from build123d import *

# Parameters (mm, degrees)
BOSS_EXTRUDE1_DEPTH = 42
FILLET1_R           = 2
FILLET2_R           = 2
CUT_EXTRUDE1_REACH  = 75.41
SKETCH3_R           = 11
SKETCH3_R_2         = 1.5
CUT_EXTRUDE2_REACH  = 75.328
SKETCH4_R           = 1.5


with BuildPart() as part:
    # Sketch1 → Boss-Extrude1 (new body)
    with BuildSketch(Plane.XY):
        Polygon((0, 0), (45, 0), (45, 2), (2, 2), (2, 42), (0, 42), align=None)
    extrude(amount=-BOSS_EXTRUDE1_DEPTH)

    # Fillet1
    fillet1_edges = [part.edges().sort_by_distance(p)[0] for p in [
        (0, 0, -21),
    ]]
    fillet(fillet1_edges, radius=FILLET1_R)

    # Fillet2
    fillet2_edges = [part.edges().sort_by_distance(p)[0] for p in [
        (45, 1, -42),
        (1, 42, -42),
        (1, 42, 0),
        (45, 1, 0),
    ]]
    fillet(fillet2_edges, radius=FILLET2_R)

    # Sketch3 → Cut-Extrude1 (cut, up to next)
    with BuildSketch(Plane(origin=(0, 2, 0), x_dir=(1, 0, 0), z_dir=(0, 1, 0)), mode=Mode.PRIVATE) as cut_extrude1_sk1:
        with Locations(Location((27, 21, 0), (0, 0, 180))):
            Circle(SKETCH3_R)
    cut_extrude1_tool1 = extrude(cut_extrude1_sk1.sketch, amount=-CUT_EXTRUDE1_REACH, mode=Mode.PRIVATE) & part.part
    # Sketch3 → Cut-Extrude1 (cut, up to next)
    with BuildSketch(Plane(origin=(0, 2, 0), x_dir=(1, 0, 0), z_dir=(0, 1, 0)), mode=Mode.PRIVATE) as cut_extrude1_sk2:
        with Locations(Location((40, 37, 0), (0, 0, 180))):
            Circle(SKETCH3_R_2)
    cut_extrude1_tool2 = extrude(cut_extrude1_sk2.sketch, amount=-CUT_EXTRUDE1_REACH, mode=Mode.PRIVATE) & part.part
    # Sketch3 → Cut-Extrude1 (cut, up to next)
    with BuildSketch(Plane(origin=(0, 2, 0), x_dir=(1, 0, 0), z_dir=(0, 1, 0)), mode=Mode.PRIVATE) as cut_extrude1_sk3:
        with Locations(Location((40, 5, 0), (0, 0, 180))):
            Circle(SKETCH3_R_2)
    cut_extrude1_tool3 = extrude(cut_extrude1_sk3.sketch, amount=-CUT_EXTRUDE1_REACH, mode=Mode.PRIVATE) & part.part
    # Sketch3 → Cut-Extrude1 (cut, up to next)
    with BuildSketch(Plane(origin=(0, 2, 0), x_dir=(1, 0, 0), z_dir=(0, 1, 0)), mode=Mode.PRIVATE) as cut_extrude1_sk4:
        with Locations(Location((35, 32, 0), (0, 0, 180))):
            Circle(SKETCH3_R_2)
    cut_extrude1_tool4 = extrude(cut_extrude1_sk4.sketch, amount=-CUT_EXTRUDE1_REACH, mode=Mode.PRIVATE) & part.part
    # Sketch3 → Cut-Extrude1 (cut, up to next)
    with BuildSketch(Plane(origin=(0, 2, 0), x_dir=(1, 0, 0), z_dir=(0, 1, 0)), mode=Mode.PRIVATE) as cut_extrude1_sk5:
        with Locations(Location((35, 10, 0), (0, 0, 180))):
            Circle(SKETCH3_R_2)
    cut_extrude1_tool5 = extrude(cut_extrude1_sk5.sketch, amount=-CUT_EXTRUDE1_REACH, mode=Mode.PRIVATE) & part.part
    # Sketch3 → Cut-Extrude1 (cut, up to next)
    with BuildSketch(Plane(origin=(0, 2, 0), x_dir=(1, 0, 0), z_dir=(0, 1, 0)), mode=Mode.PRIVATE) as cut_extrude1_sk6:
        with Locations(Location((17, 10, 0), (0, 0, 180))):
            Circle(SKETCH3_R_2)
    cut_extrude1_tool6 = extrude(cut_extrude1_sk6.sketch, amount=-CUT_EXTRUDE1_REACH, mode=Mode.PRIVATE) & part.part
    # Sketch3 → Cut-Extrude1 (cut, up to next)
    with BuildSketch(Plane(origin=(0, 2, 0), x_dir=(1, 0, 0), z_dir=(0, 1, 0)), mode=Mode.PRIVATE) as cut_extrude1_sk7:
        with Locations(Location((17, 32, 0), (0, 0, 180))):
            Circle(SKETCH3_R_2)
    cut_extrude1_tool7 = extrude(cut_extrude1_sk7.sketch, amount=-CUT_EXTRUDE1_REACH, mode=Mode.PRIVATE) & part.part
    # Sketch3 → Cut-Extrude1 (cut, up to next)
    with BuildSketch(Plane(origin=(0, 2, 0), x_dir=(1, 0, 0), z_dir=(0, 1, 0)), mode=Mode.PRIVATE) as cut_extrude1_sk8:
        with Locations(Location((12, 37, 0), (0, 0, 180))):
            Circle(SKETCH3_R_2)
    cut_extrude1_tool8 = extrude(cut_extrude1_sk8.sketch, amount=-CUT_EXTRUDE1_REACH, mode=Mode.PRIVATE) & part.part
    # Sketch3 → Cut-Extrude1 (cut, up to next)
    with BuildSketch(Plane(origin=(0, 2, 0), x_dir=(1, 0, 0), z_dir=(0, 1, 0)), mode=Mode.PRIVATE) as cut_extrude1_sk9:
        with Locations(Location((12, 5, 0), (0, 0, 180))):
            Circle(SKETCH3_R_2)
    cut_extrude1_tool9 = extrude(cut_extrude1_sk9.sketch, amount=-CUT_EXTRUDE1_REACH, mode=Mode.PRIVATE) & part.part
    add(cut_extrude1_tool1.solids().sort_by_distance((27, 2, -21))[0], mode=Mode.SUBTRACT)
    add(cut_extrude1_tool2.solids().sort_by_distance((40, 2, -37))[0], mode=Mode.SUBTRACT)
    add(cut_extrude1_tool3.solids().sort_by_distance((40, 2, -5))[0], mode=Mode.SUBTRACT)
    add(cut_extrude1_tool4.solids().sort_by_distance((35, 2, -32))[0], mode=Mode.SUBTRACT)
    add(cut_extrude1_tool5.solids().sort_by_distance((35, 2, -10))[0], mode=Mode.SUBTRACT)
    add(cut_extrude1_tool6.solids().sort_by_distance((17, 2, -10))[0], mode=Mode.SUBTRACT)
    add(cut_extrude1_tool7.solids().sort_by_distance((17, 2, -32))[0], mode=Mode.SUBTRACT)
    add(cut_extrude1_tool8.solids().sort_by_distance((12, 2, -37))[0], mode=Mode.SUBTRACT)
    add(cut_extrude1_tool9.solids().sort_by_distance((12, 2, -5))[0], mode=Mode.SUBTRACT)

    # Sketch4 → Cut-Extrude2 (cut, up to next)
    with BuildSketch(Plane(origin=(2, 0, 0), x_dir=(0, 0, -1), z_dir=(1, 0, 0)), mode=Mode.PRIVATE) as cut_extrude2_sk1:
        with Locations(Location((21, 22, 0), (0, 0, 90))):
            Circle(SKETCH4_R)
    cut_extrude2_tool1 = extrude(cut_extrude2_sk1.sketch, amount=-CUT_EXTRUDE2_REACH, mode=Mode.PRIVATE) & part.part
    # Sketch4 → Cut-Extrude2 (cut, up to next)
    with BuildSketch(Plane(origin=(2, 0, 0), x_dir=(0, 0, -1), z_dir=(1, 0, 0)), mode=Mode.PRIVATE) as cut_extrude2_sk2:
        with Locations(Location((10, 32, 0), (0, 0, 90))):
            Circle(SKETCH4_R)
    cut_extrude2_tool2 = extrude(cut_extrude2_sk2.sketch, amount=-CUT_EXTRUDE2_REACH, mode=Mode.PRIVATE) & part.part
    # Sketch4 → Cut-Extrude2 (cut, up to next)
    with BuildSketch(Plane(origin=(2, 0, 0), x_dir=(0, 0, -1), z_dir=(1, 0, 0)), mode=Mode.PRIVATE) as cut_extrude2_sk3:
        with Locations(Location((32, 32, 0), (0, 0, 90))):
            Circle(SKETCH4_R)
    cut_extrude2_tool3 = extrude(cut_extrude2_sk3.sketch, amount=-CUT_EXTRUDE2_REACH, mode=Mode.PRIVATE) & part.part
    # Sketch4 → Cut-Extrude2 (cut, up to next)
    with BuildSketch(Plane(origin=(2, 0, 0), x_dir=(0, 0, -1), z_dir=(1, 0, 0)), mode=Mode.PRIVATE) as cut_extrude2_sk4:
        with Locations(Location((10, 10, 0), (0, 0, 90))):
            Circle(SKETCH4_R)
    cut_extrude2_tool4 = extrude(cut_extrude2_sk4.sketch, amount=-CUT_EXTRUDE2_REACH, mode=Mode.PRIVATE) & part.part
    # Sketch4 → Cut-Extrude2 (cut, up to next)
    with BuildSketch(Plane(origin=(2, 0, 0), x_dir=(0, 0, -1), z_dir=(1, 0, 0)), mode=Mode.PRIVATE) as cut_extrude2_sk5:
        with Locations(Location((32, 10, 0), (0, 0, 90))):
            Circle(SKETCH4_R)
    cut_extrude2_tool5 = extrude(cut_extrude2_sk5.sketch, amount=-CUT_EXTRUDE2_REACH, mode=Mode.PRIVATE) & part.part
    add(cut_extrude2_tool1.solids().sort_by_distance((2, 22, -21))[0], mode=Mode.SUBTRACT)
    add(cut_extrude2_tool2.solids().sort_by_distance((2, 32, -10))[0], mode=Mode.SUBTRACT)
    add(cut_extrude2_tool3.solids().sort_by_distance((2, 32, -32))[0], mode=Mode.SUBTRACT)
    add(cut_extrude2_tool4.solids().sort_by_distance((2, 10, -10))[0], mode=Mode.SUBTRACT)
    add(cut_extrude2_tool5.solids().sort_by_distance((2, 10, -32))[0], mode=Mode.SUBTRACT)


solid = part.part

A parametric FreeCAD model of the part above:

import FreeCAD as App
import Part
import Sketcher

V = App.Vector
Q = App.Units.Quantity


def edges_at(feature, points):
    """Names of the edges that pass closest to the given points."""
    edges = feature.Shape.Edges
    near = lambda p: min(range(len(edges)), key=lambda i: edges[i].distToShape(Part.Vertex(*p))[0])
    return sorted({f"Edge{near(p) + 1}" for p in points})


def add_polygon(sketch, points):
    """Adds a closed chain of lines whose ends are joined by coincident constraints."""
    first, n = sketch.GeometryCount, len(points)
    for a, b in zip(points, points[1:] + points[:1]):
        sketch.addGeometry(Part.LineSegment(App.Vector(*a, 0), App.Vector(*b, 0)), False)
    for i in range(n):
        sketch.addConstraint(Sketcher.Constraint("Coincident", first + i, 2, first + (i + 1) % n, 1))

doc = App.newDocument("Part")
body = doc.addObject("PartDesign::Body", "Body")

# Sketch on XY plane
sketch1 = body.newObject("Sketcher::SketchObject", "Sketch")
sketch1.AttachmentSupport = (doc.getObject("XY_Plane"), [""])
sketch1.MapMode = "FlatFace"
add_polygon(sketch1, [(0, 0), (45, 0), (45, 2), (2, 2), (2, 42), (0, 42)])  # lines 0-5
sketch1.addConstraint([
    Sketcher.Constraint("Horizontal", 0),
    Sketcher.Constraint("Vertical", 1),
    Sketcher.Constraint("Horizontal", 2),
    Sketcher.Constraint("Vertical", 3),
    Sketcher.Constraint("Horizontal", 4),
    Sketcher.Constraint("Vertical", 5),
    Sketcher.Constraint("Coincident", 5, 2, -1, 1),
    Sketcher.Constraint("Equal", 4, 1),
    Sketcher.Constraint("DistanceX", 0, 1, 0, 2, Q("45 mm")),
    Sketcher.Constraint("DistanceX", 2, 2, 2, 1, Q("43 mm")),
    Sketcher.Constraint("DistanceY", 3, 1, 3, 2, Q("40 mm")),
])
pad1 = body.newObject("PartDesign::Pad", "Pad")
pad1.Profile = sketch1
pad1.Length = 42
pad1.Reversed = True
doc.recompute()

fillet = body.newObject("PartDesign::Fillet", "Fillet")
fillet.Base = (pad1, edges_at(pad1, [(0, 0, -21)]))
fillet.Radius = 2
doc.recompute()

fillet2 = body.newObject("PartDesign::Fillet", "Fillet001")
fillet2.Base = (fillet, edges_at(fillet, [
    (45, 1, -42),
    (1, 42, -42),
    (1, 42, 0),
    (45, 1, 0),
]))
fillet2.Radius = 2

# Sketch on XZ plane
sketch2 = body.newObject("Sketcher::SketchObject", "Sketch001")
sketch2.AttachmentSupport = (doc.getObject("XZ_Plane"), [""])
sketch2.MapMode = "FlatFace"
sketch2.AttachmentOffset = App.Placement(V(0, 0, -2), App.Rotation())
sketch2.addGeometry(Part.Circle(V(27, -21, 0), V(0, 0, 1), 11), False)
sketch2.addConstraint([
    Sketcher.Constraint("Diameter", 0, Q("22 mm")),
    Sketcher.Constraint("DistanceX", -1, 1, 0, 3, Q("27 mm")),
    Sketcher.Constraint("DistanceY", 0, 3, -1, 1, Q("21 mm")),
])
pocket1 = body.newObject("PartDesign::Pocket", "Pocket")
pocket1.Profile = sketch2
pocket1.Type = "UpToFirst"
pocket1.Reversed = True

# Sketch on XZ plane
sketch3 = body.newObject("Sketcher::SketchObject", "Sketch002")
sketch3.AttachmentSupport = (doc.getObject("XZ_Plane"), [""])
sketch3.MapMode = "FlatFace"
sketch3.AttachmentOffset = App.Placement(V(0, 0, -2), App.Rotation())
sketch3.addGeometry(Part.Circle(V(40, -37, 0), V(0, 0, 1), 1.5), False)
sketch3.addConstraint([
    Sketcher.Constraint("Diameter", 0, Q("3 mm")),
    Sketcher.Constraint("DistanceX", -1, 1, 0, 3, Q("40 mm")),
    Sketcher.Constraint("DistanceY", 0, 3, -1, 1, Q("37 mm")),
])
pocket2 = body.newObject("PartDesign::Pocket", "Pocket001")
pocket2.Profile = sketch3
pocket2.Type = "UpToFirst"
pocket2.Reversed = True

# Sketch on XZ plane
sketch4 = body.newObject("Sketcher::SketchObject", "Sketch003")
sketch4.AttachmentSupport = (doc.getObject("XZ_Plane"), [""])
sketch4.MapMode = "FlatFace"
sketch4.AttachmentOffset = App.Placement(V(0, 0, -2), App.Rotation())
sketch4.addGeometry(Part.Circle(V(40, -5, 0), V(0, 0, 1), 1.5), False)
sketch4.addConstraint([
    Sketcher.Constraint("Diameter", 0, Q("3 mm")),
    Sketcher.Constraint("DistanceX", -1, 1, 0, 3, Q("40 mm")),
    Sketcher.Constraint("DistanceY", 0, 3, -1, 1, Q("5 mm")),
])
pocket3 = body.newObject("PartDesign::Pocket", "Pocket002")
pocket3.Profile = sketch4
pocket3.Type = "UpToFirst"
pocket3.Reversed = True

# Sketch on XZ plane
sketch5 = body.newObject("Sketcher::SketchObject", "Sketch004")
sketch5.AttachmentSupport = (doc.getObject("XZ_Plane"), [""])
sketch5.MapMode = "FlatFace"
sketch5.AttachmentOffset = App.Placement(V(0, 0, -2), App.Rotation())
sketch5.addGeometry(Part.Circle(V(35, -32, 0), V(0, 0, 1), 1.5), False)
sketch5.addConstraint([
    Sketcher.Constraint("Diameter", 0, Q("3 mm")),
    Sketcher.Constraint("DistanceX", -1, 1, 0, 3, Q("35 mm")),
    Sketcher.Constraint("DistanceY", 0, 3, -1, 1, Q("32 mm")),
])
pocket4 = body.newObject("PartDesign::Pocket", "Pocket003")
pocket4.Profile = sketch5
pocket4.Type = "UpToFirst"
pocket4.Reversed = True

# Sketch on XZ plane
sketch6 = body.newObject("Sketcher::SketchObject", "Sketch005")
sketch6.AttachmentSupport = (doc.getObject("XZ_Plane"), [""])
sketch6.MapMode = "FlatFace"
sketch6.AttachmentOffset = App.Placement(V(0, 0, -2), App.Rotation())
sketch6.addGeometry(Part.Circle(V(35, -10, 0), V(0, 0, 1), 1.5), False)
sketch6.addConstraint([
    Sketcher.Constraint("Diameter", 0, Q("3 mm")),
    Sketcher.Constraint("DistanceX", -1, 1, 0, 3, Q("35 mm")),
    Sketcher.Constraint("DistanceY", 0, 3, -1, 1, Q("10 mm")),
])
pocket5 = body.newObject("PartDesign::Pocket", "Pocket004")
pocket5.Profile = sketch6
pocket5.Type = "UpToFirst"
pocket5.Reversed = True

# Sketch on XZ plane
sketch7 = body.newObject("Sketcher::SketchObject", "Sketch006")
sketch7.AttachmentSupport = (doc.getObject("XZ_Plane"), [""])
sketch7.MapMode = "FlatFace"
sketch7.AttachmentOffset = App.Placement(V(0, 0, -2), App.Rotation())
sketch7.addGeometry(Part.Circle(V(17, -10, 0), V(0, 0, 1), 1.5), False)
sketch7.addConstraint([
    Sketcher.Constraint("Diameter", 0, Q("3 mm")),
    Sketcher.Constraint("DistanceX", -1, 1, 0, 3, Q("17 mm")),
    Sketcher.Constraint("DistanceY", 0, 3, -1, 1, Q("10 mm")),
])
pocket6 = body.newObject("PartDesign::Pocket", "Pocket005")
pocket6.Profile = sketch7
pocket6.Type = "UpToFirst"
pocket6.Reversed = True

# Sketch on XZ plane
sketch8 = body.newObject("Sketcher::SketchObject", "Sketch007")
sketch8.AttachmentSupport = (doc.getObject("XZ_Plane"), [""])
sketch8.MapMode = "FlatFace"
sketch8.AttachmentOffset = App.Placement(V(0, 0, -2), App.Rotation())
sketch8.addGeometry(Part.Circle(V(17, -32, 0), V(0, 0, 1), 1.5), False)
sketch8.addConstraint([
    Sketcher.Constraint("Diameter", 0, Q("3 mm")),
    Sketcher.Constraint("DistanceX", -1, 1, 0, 3, Q("17 mm")),
    Sketcher.Constraint("DistanceY", 0, 3, -1, 1, Q("32 mm")),
])
pocket7 = body.newObject("PartDesign::Pocket", "Pocket006")
pocket7.Profile = sketch8
pocket7.Type = "UpToFirst"
pocket7.Reversed = True

# Sketch on XZ plane
sketch9 = body.newObject("Sketcher::SketchObject", "Sketch008")
sketch9.AttachmentSupport = (doc.getObject("XZ_Plane"), [""])
sketch9.MapMode = "FlatFace"
sketch9.AttachmentOffset = App.Placement(V(0, 0, -2), App.Rotation())
sketch9.addGeometry(Part.Circle(V(12, -37, 0), V(0, 0, 1), 1.5), False)
sketch9.addConstraint([
    Sketcher.Constraint("Diameter", 0, Q("3 mm")),
    Sketcher.Constraint("DistanceX", -1, 1, 0, 3, Q("12 mm")),
    Sketcher.Constraint("DistanceY", 0, 3, -1, 1, Q("37 mm")),
])
pocket8 = body.newObject("PartDesign::Pocket", "Pocket007")
pocket8.Profile = sketch9
pocket8.Type = "UpToFirst"
pocket8.Reversed = True

# Sketch on XZ plane
sketch10 = body.newObject("Sketcher::SketchObject", "Sketch009")
sketch10.AttachmentSupport = (doc.getObject("XZ_Plane"), [""])
sketch10.MapMode = "FlatFace"
sketch10.AttachmentOffset = App.Placement(V(0, 0, -2), App.Rotation())
sketch10.addGeometry(Part.Circle(V(12, -5, 0), V(0, 0, 1), 1.5), False)
sketch10.addConstraint([
    Sketcher.Constraint("Diameter", 0, Q("3 mm")),
    Sketcher.Constraint("DistanceX", -1, 1, 0, 3, Q("12 mm")),
    Sketcher.Constraint("DistanceY", 0, 3, -1, 1, Q("5 mm")),
])
pocket9 = body.newObject("PartDesign::Pocket", "Pocket008")
pocket9.Profile = sketch10
pocket9.Type = "UpToFirst"
pocket9.Reversed = True

# Sketch on YZ plane
sketch11 = body.newObject("Sketcher::SketchObject", "Sketch010")
sketch11.AttachmentSupport = (doc.getObject("YZ_Plane"), [""])
sketch11.MapMode = "FlatFace"
sketch11.AttachmentOffset = App.Placement(V(0, 0, 2), App.Rotation())
sketch11.addGeometry(Part.Circle(V(22, -21, 0), V(0, 0, 1), 1.5), False)
sketch11.addConstraint([
    Sketcher.Constraint("Diameter", 0, Q("3 mm")),
    Sketcher.Constraint("DistanceX", -1, 1, 0, 3, Q("22 mm")),
    Sketcher.Constraint("DistanceY", 0, 3, -1, 1, Q("21 mm")),
])
pocket10 = body.newObject("PartDesign::Pocket", "Pocket009")
pocket10.Profile = sketch11
pocket10.Type = "UpToFirst"

# Sketch on YZ plane
sketch12 = body.newObject("Sketcher::SketchObject", "Sketch011")
sketch12.AttachmentSupport = (doc.getObject("YZ_Plane"), [""])
sketch12.MapMode = "FlatFace"
sketch12.AttachmentOffset = App.Placement(V(0, 0, 2), App.Rotation())
sketch12.addGeometry(Part.Circle(V(32, -10, 0), V(0, 0, 1), 1.5), False)
sketch12.addConstraint([
    Sketcher.Constraint("Diameter", 0, Q("3 mm")),
    Sketcher.Constraint("DistanceX", -1, 1, 0, 3, Q("32 mm")),
    Sketcher.Constraint("DistanceY", 0, 3, -1, 1, Q("10 mm")),
])
pocket11 = body.newObject("PartDesign::Pocket", "Pocket010")
pocket11.Profile = sketch12
pocket11.Type = "UpToFirst"

# Sketch on YZ plane
sketch13 = body.newObject("Sketcher::SketchObject", "Sketch012")
sketch13.AttachmentSupport = (doc.getObject("YZ_Plane"), [""])
sketch13.MapMode = "FlatFace"
sketch13.AttachmentOffset = App.Placement(V(0, 0, 2), App.Rotation())
sketch13.addGeometry(Part.Circle(V(32, -32, 0), V(0, 0, 1), 1.5), False)
sketch13.addConstraint([
    Sketcher.Constraint("Diameter", 0, Q("3 mm")),
    Sketcher.Constraint("DistanceX", -1, 1, 0, 3, Q("32 mm")),
    Sketcher.Constraint("DistanceY", 0, 3, -1, 1, Q("32 mm")),
])
pocket12 = body.newObject("PartDesign::Pocket", "Pocket011")
pocket12.Profile = sketch13
pocket12.Type = "UpToFirst"

# Sketch on YZ plane
sketch14 = body.newObject("Sketcher::SketchObject", "Sketch013")
sketch14.AttachmentSupport = (doc.getObject("YZ_Plane"), [""])
sketch14.MapMode = "FlatFace"
sketch14.AttachmentOffset = App.Placement(V(0, 0, 2), App.Rotation())
sketch14.addGeometry(Part.Circle(V(10, -10, 0), V(0, 0, 1), 1.5), False)
sketch14.addConstraint([
    Sketcher.Constraint("Diameter", 0, Q("3 mm")),
    Sketcher.Constraint("DistanceX", -1, 1, 0, 3, Q("10 mm")),
    Sketcher.Constraint("DistanceY", 0, 3, -1, 1, Q("10 mm")),
])
pocket13 = body.newObject("PartDesign::Pocket", "Pocket012")
pocket13.Profile = sketch14
pocket13.Type = "UpToFirst"

# Sketch on YZ plane
sketch15 = body.newObject("Sketcher::SketchObject", "Sketch014")
sketch15.AttachmentSupport = (doc.getObject("YZ_Plane"), [""])
sketch15.MapMode = "FlatFace"
sketch15.AttachmentOffset = App.Placement(V(0, 0, 2), App.Rotation())
sketch15.addGeometry(Part.Circle(V(10, -32, 0), V(0, 0, 1), 1.5), False)
sketch15.addConstraint([
    Sketcher.Constraint("Diameter", 0, Q("3 mm")),
    Sketcher.Constraint("DistanceX", -1, 1, 0, 3, Q("10 mm")),
    Sketcher.Constraint("DistanceY", 0, 3, -1, 1, Q("32 mm")),
])
pocket14 = body.newObject("PartDesign::Pocket", "Pocket013")
pocket14.Profile = sketch15
pocket14.Type = "UpToFirst"

doc.recompute()
